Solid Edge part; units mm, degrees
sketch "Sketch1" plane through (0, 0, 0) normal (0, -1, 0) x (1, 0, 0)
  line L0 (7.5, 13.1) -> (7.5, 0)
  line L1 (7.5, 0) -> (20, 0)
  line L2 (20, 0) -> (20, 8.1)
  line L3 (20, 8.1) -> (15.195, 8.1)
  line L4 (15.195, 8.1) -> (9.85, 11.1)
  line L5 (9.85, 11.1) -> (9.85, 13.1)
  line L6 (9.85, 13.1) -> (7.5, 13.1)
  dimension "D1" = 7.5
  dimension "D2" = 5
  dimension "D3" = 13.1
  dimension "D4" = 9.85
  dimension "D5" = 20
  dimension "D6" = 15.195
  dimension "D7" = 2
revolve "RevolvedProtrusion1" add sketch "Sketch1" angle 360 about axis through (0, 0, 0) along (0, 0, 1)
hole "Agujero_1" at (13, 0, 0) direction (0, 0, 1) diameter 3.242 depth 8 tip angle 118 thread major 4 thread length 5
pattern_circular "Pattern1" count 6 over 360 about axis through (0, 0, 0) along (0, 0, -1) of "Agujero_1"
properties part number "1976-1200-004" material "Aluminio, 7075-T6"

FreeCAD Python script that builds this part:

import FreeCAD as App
import Part
import Sketcher

V = App.Vector

doc = App.newDocument("Part")
body = doc.addObject("PartDesign::Body", "Body")

# Sketch on XZ plane
sketch1 = body.newObject("Sketcher::SketchObject", "Sketch")
sketch1.AttachmentSupport = (doc.getObject("XZ_Plane"), [""])
sketch1.MapMode = "FlatFace"
sketch1.addGeometry([
    Part.LineSegment(V(9.8, 13.1, 0), V(7.5, 13.1, 0)),  # 0
    Part.LineSegment(V(7.5, 13.1, 0), V(7.5, 0, 0)),  # 1
    Part.LineSegment(V(7.5, 0, 0), V(20, 0, 0)),  # 2
    Part.LineSegment(V(20, 0, 0), V(20, 8.1, 0)),  # 3
    Part.LineSegment(V(20, 8.1, 0), V(15.2, 8.1, 0)),  # 4
    Part.LineSegment(V(15.2, 8.1, 0), V(9.8, 11.1, 0)),  # 5
    Part.LineSegment(V(9.8, 11.1, 0), V(9.8, 13.1, 0)),  # 6
], False)
sketch1.addConstraint([
    Sketcher.Constraint("Coincident", 0, 2, 1, 1),
    Sketcher.Constraint("Coincident", 1, 2, 2, 1),
    Sketcher.Constraint("Coincident", 2, 2, 3, 1),
    Sketcher.Constraint("Coincident", 3, 2, 4, 1),
    Sketcher.Constraint("Coincident", 4, 2, 5, 1),
    Sketcher.Constraint("Coincident", 5, 2, 6, 1),
    Sketcher.Constraint("Coincident", 6, 2, 0, 1),
    Sketcher.Constraint("Horizontal", 0),
    Sketcher.Constraint("Vertical", 1),
    Sketcher.Constraint("Horizontal", 2),
    Sketcher.Constraint("Vertical", 3),
    Sketcher.Constraint("Horizontal", 4),
    Sketcher.Constraint("Vertical", 6),
    Sketcher.Constraint("PointOnObject", 1, 2, -1),
    Sketcher.Constraint("DistanceY", 6, 1, 6, 2, 2.0),
    Sketcher.Constraint("DistanceX", -1, 1, 5, 2, 9.85),
    Sketcher.Constraint("DistanceX", 2, 1, 2, 2, 12.5),
    Sketcher.Constraint("DistanceY", 1, 2, 1, 1, 13.1),
    Sketcher.Constraint("DistanceY", 3, 1, 3, 2, 8.1),
    Sketcher.Constraint("DistanceX", -1, 1, 2, 2, 20.0),
    Sketcher.Constraint("DistanceX", 4, 2, 4, 1, 4.805),
])
revolution = body.newObject("PartDesign::Revolution", "Revolution")
revolution.Profile = sketch1
revolution.ReferenceAxis = (sketch1, ["V_Axis"])
revolution.Angle = 360

# Sketch on XY plane
sketch2 = body.newObject("Sketcher::SketchObject", "Sketch001")
sketch2.AttachmentSupport = (doc.getObject("XY_Plane"), [""])
sketch2.MapMode = "FlatFace"
sketch2.addGeometry(Part.Circle(V(13, 0, 0), V(0, 0, 1), 1.6), False)
sketch2.addConstraint([
    Sketcher.Constraint("PointOnObject", 0, 3, -1),
    Sketcher.Constraint("Diameter", 0, 3.242),
    Sketcher.Constraint("DistanceX", -1, 1, 0, 3, 13.0),
])
doc.recompute()
hole = body.newObject("PartDesign::Hole", "Hole")
hole.Profile = sketch2
hole.ThreadType = "None"
hole.Diameter = 3.242
hole.DepthType = "Dimension"
hole.Depth = 8
hole.DrillPoint = "Angled"
hole.DrillPointAngle = 118
hole.Reversed = True
doc.recompute()

polarpattern = body.newObject("PartDesign::PolarPattern", "PolarPattern")
polarpattern.Originals = [hole]
polarpattern.Axis = (doc.getObject("Z_Axis"), [""])
polarpattern.Angle = 360
polarpattern.Occurrences = 6
body.Tip = polarpattern

doc.recompute()
